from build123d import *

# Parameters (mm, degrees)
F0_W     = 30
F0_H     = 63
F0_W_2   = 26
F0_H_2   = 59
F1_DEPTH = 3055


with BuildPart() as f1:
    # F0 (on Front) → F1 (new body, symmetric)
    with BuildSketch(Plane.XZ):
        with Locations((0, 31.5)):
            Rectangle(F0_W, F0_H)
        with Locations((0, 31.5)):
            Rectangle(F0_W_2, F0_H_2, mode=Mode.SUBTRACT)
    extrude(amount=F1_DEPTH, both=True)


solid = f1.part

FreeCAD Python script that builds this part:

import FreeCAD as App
import Part
import Sketcher
Q = App.Units.Quantity


def add_polygon(sketch, points):
    """Adds a closed chain of lines whose ends are joined by coincident constraints."""
    first, n = sketch.GeometryCount, len(points)
    for a, b in zip(points, points[1:] + points[:1]):
        sketch.addGeometry(Part.LineSegment(App.Vector(*a, 0), App.Vector(*b, 0)), False)
    for i in range(n):
        sketch.addConstraint(Sketcher.Constraint("Coincident", first + i, 2, first + (i + 1) % n, 1))

doc = App.newDocument("Part")
params = doc.addObject("Spreadsheet::Sheet", "Params")
for row, (alias, value) in enumerate([
    ("sketch1_width", "30 mm"),
    ("sketch1_width2", "26 mm"),
    ("sketch1_height", "63 mm"),
    ("sketch1_height2", "59 mm"),
    ("pad1_length", "6110 mm"),
], start=1):
    params.set(f"A{row}", alias)
    params.set(f"B{row}", "=" + value)
    params.setAlias(f"B{row}", alias)

body = doc.addObject("PartDesign::Body", "Body")

sketch1 = body.newObject("Sketcher::SketchObject", "Sketch")
sketch1.AttachmentSupport = (doc.getObject("XZ_Plane"), [""])
sketch1.MapMode = "FlatFace"
add_polygon(sketch1, [(-15, 63), (-15, 0), (15, 0), (15, 63)])
add_polygon(sketch1, [(13, 2), (-13, 2), (-13, 61), (13, 61)])
sketch1.addConstraint(Sketcher.Constraint("Vertical", 0))
sketch1.addConstraint(Sketcher.Constraint("Horizontal", 1))
sketch1.addConstraint(Sketcher.Constraint("Vertical", 2))
sketch1.addConstraint(Sketcher.Constraint("Horizontal", 3))
sketch1.addConstraint(Sketcher.Constraint("Horizontal", 4))
sketch1.addConstraint(Sketcher.Constraint("Vertical", 5))
sketch1.addConstraint(Sketcher.Constraint("Horizontal", 6))
sketch1.addConstraint(Sketcher.Constraint("Vertical", 7))
sketch1.addConstraint(Sketcher.Constraint("Symmetric", 0, 2, 1, 2, -1, 1))
sketch1.addConstraint(Sketcher.Constraint("DistanceX", 1, 1, 1, 2, Q("30 mm")))
sketch1.addConstraint(Sketcher.Constraint("DistanceX", 4, 2, 4, 1, Q("26 mm")))
sketch1.addConstraint(Sketcher.Constraint("DistanceY", 0, 2, 0, 1, Q("63 mm")))
sketch1.addConstraint(Sketcher.Constraint("DistanceY", 5, 1, 5, 2, Q("59 mm")))
sketch1.addConstraint(Sketcher.Constraint("DistanceX", 4, 2, -1, 1, Q("13 mm")))
sketch1.addConstraint(Sketcher.Constraint("DistanceY", -1, 1, 4, 2, Q("2 mm")))
sketch1.setExpression("Constraints[17]", "Params.sketch1_width")
sketch1.setExpression("Constraints[18]", "Params.sketch1_width2")
sketch1.setExpression("Constraints[19]", "Params.sketch1_height")
sketch1.setExpression("Constraints[20]", "Params.sketch1_height2")
pad1 = body.newObject("PartDesign::Pad", "Pad")
pad1.Profile = sketch1
pad1.setExpression("Length", "Params.pad1_length")
pad1.Midplane = True

doc.recompute()
